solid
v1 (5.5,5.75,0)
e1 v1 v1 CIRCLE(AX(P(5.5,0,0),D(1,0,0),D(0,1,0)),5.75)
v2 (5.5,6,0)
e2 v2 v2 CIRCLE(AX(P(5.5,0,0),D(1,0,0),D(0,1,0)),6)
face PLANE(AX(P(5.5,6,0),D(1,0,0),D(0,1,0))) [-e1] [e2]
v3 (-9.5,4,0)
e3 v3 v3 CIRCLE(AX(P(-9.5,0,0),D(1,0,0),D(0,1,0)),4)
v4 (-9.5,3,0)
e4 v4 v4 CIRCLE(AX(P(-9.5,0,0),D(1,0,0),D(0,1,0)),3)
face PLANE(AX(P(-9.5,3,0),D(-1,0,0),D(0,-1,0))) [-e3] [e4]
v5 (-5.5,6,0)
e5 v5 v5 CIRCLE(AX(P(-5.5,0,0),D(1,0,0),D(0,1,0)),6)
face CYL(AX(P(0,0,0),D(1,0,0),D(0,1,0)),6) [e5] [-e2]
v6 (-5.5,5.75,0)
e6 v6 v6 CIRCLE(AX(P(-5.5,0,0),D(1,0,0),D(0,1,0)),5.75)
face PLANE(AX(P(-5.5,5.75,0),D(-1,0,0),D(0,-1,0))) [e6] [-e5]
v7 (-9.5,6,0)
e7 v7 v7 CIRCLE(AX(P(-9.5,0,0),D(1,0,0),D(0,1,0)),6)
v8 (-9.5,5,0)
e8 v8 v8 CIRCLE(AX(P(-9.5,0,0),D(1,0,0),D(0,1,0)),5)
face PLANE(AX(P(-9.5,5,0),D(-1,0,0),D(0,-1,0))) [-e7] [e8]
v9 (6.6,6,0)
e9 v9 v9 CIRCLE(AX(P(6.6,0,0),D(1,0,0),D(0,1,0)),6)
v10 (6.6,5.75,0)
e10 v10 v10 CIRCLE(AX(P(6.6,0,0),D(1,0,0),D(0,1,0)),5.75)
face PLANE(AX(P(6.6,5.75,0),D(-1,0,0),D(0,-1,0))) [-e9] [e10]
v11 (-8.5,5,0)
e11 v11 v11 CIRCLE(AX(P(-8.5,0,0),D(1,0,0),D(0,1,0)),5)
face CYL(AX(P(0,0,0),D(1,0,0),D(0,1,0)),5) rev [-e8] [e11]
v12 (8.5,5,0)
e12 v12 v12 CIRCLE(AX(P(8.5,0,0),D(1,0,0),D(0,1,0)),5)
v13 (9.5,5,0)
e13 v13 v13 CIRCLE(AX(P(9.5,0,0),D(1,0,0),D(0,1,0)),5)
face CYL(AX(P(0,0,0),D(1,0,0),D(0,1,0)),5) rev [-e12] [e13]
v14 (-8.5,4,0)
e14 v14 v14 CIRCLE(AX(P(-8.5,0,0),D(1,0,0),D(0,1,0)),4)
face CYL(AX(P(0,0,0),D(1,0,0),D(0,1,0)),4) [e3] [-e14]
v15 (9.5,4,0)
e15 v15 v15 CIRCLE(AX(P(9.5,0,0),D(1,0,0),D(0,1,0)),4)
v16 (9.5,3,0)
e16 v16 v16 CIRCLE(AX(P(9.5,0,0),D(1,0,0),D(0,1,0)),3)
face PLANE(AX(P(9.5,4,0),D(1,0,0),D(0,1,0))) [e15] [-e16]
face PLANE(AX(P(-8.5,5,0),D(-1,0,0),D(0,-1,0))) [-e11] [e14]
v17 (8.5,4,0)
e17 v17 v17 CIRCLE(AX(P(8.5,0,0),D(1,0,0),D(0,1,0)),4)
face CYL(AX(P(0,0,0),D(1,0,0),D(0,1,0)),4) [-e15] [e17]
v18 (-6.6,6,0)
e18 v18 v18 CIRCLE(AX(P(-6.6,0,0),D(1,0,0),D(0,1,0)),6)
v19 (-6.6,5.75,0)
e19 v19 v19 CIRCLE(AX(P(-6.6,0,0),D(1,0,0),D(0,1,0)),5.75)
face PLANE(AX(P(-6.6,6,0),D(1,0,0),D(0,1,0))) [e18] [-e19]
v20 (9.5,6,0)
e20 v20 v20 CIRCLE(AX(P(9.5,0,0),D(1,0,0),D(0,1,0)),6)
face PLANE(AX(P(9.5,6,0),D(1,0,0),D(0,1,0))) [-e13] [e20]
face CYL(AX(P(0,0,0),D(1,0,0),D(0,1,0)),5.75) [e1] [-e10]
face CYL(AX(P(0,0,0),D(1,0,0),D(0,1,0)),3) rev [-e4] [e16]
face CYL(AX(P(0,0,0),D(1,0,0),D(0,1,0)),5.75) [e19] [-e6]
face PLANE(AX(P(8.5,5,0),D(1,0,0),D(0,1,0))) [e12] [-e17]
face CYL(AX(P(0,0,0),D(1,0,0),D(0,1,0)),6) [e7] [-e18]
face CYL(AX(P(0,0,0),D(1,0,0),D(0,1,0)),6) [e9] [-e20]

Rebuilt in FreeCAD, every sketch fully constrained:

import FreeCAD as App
import Part
import Sketcher


def add_polygon(sketch, points):
    """Adds a closed chain of lines whose ends are joined by coincident constraints."""
    first, n = sketch.GeometryCount, len(points)
    for a, b in zip(points, points[1:] + points[:1]):
        sketch.addGeometry(Part.LineSegment(App.Vector(*a, 0), App.Vector(*b, 0)), False)
    for i in range(n):
        sketch.addConstraint(Sketcher.Constraint("Coincident", first + i, 2, first + (i + 1) % n, 1))

doc = App.newDocument("Part")
params = doc.addObject("Spreadsheet::Sheet", "Params")
for row, (alias, value) in enumerate([
    ("sketch1_width", "1 mm"),
    ("sketch1_width2", "19 mm"),
    ("sketch1_width3", "11 mm"),
    ("sketch1_width4", "2.9 mm"),
    ("sketch1_height", "0.25 mm"),
    ("revolution_angle", "360 deg"),
], start=1):
    params.set(f"A{row}", alias)
    params.set(f"B{row}", "=" + value)
    params.setAlias(f"B{row}", alias)

body = doc.addObject("PartDesign::Body", "Body")

# Sketch on XY plane
sketch1 = body.newObject("Sketcher::SketchObject", "Sketch")
sketch1.AttachmentSupport = (doc.getObject("XY_Plane"), [""])
sketch1.MapMode = "FlatFace"
add_polygon(sketch1, [(-6.6, 6), (-9.5, 6), (-9.5, 5), (-8.5, 5), (-8.5, 4), (-9.5, 4), (-9.5, 3), (9.5, 3), (9.5, 4), (8.5, 4), (8.5, 5), (9.5, 5), (9.5, 6), (6.6, 6), (6.6, 5.75), (5.5, 5.75), (5.5, 6), (-5.5, 6), (-5.5, 5.75), (-6.6, 5.75)])  # lines 0-19
sketch1.addConstraint([
    Sketcher.Constraint("Horizontal", 0),
    Sketcher.Constraint("Vertical", 1),
    Sketcher.Constraint("Horizontal", 2),
    Sketcher.Constraint("Vertical", 3),
    Sketcher.Constraint("Horizontal", 4),
    Sketcher.Constraint("Vertical", 5),
    Sketcher.Constraint("Horizontal", 6),
    Sketcher.Constraint("Vertical", 7),
    Sketcher.Constraint("Horizontal", 8),
    Sketcher.Constraint("Vertical", 9),
    Sketcher.Constraint("Horizontal", 10),
    Sketcher.Constraint("Vertical", 11),
    Sketcher.Constraint("Horizontal", 12),
    Sketcher.Constraint("Vertical", 13),
    Sketcher.Constraint("Horizontal", 14),
    Sketcher.Constraint("Vertical", 15),
    Sketcher.Constraint("Horizontal", 16),
    Sketcher.Constraint("Vertical", 17),
    Sketcher.Constraint("Horizontal", 18),
    Sketcher.Constraint("Vertical", 19),
    Sketcher.Constraint("Symmetric", 4, 2, 7, 2, -2),
    Sketcher.Constraint("Symmetric", 2, 2, 9, 2, -2),
    Sketcher.Constraint("Symmetric", 0, 2, 11, 2, -2),
    Sketcher.Constraint("Symmetric", 14, 2, 17, 2, -2),
    Sketcher.Constraint("Horizontal", 12, 2, 15, 2),
    Sketcher.Constraint("Vertical", 1, 2, 4, 2),
    Sketcher.Constraint("Equal", 0, 12),
    Sketcher.Constraint("Equal", 10, 1),
    Sketcher.Constraint("Equal", 1, 3),
    Sketcher.Constraint("Equal", 3, 5),
    Sketcher.Constraint("DistanceX", 2, 1, 2, 2, 1.0),
    Sketcher.Constraint("DistanceX", 6, 1, 6, 2, 19.0),
    Sketcher.Constraint("DistanceX", 16, 2, 16, 1, 11.0),
    Sketcher.Constraint("DistanceX", 0, 2, 0, 1, 2.9),
    Sketcher.Constraint("DistanceY", -1, 1, 0, 2, 6.0),
    Sketcher.Constraint("DistanceY", 13, 2, 13, 1, 0.25),
])
sketch1.setExpression("Constraints[50]", "Params.sketch1_width")
sketch1.setExpression("Constraints[51]", "Params.sketch1_width2")
sketch1.setExpression("Constraints[52]", "Params.sketch1_width3")
sketch1.setExpression("Constraints[53]", "Params.sketch1_width4")
sketch1.setExpression("Constraints[55]", "Params.sketch1_height")
revolution = body.newObject("PartDesign::Revolution", "Revolution")
revolution.Profile = sketch1
revolution.ReferenceAxis = (sketch1, ["H_Axis"])
revolution.setExpression("Angle", "Params.revolution_angle")

doc.recompute()
